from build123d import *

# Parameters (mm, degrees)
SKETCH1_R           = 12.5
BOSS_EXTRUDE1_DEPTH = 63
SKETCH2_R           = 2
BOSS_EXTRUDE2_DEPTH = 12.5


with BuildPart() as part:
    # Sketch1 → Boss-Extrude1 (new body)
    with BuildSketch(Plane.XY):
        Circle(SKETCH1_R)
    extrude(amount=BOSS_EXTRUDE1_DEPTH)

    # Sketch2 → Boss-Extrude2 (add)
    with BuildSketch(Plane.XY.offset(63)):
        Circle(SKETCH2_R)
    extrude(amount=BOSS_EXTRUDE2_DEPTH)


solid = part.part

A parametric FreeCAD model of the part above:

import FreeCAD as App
import Part
import Sketcher

doc = App.newDocument("Part")
params = doc.addObject("Spreadsheet::Sheet", "Params")
for row, (alias, value) in enumerate([
    ("sketch1_diameter", "25 mm"),
    ("pad1_length", "63 mm"),
    ("sketch2_diameter", "4 mm"),
    ("pad2_length", "12.5 mm"),
], start=1):
    params.set(f"A{row}", alias)
    params.set(f"B{row}", "=" + value)
    params.setAlias(f"B{row}", alias)

body = doc.addObject("PartDesign::Body", "Body")

# Sketch on XY plane
sketch1 = body.newObject("Sketcher::SketchObject", "Sketch")
sketch1.AttachmentSupport = (doc.getObject("XY_Plane"), [""])
sketch1.MapMode = "FlatFace"
sketch1.addGeometry(Part.Circle(App.Vector(0, 0, 0), App.Vector(0, 0, 1), 12), False)
sketch1.addConstraint([
    Sketcher.Constraint("Coincident", 0, 3, -1, 1),
    Sketcher.Constraint("Diameter", 0, 25.0),
])
sketch1.setExpression("Constraints[1]", "Params.sketch1_diameter")
pad1 = body.newObject("PartDesign::Pad", "Pad")
pad1.Profile = sketch1
pad1.setExpression("Length", "Params.pad1_length")

# Sketch on XY plane
sketch2 = body.newObject("Sketcher::SketchObject", "Sketch001")
sketch2.AttachmentSupport = (doc.getObject("XY_Plane"), [""])
sketch2.MapMode = "FlatFace"
sketch2.AttachmentOffset = App.Placement(App.Vector(0, 0, 63), App.Rotation())
sketch2.addGeometry(Part.Circle(App.Vector(0, 0, 0), App.Vector(0, 0, 1), 2), False)
sketch2.addConstraint([
    Sketcher.Constraint("Coincident", 0, 3, -1, 1),
    Sketcher.Constraint("Diameter", 0, 4.0),
])
sketch2.setExpression("Constraints[1]", "Params.sketch2_diameter")
pad2 = body.newObject("PartDesign::Pad", "Pad001")
pad2.Profile = sketch2
pad2.setExpression("Length", "Params.pad2_length")

doc.recompute()
